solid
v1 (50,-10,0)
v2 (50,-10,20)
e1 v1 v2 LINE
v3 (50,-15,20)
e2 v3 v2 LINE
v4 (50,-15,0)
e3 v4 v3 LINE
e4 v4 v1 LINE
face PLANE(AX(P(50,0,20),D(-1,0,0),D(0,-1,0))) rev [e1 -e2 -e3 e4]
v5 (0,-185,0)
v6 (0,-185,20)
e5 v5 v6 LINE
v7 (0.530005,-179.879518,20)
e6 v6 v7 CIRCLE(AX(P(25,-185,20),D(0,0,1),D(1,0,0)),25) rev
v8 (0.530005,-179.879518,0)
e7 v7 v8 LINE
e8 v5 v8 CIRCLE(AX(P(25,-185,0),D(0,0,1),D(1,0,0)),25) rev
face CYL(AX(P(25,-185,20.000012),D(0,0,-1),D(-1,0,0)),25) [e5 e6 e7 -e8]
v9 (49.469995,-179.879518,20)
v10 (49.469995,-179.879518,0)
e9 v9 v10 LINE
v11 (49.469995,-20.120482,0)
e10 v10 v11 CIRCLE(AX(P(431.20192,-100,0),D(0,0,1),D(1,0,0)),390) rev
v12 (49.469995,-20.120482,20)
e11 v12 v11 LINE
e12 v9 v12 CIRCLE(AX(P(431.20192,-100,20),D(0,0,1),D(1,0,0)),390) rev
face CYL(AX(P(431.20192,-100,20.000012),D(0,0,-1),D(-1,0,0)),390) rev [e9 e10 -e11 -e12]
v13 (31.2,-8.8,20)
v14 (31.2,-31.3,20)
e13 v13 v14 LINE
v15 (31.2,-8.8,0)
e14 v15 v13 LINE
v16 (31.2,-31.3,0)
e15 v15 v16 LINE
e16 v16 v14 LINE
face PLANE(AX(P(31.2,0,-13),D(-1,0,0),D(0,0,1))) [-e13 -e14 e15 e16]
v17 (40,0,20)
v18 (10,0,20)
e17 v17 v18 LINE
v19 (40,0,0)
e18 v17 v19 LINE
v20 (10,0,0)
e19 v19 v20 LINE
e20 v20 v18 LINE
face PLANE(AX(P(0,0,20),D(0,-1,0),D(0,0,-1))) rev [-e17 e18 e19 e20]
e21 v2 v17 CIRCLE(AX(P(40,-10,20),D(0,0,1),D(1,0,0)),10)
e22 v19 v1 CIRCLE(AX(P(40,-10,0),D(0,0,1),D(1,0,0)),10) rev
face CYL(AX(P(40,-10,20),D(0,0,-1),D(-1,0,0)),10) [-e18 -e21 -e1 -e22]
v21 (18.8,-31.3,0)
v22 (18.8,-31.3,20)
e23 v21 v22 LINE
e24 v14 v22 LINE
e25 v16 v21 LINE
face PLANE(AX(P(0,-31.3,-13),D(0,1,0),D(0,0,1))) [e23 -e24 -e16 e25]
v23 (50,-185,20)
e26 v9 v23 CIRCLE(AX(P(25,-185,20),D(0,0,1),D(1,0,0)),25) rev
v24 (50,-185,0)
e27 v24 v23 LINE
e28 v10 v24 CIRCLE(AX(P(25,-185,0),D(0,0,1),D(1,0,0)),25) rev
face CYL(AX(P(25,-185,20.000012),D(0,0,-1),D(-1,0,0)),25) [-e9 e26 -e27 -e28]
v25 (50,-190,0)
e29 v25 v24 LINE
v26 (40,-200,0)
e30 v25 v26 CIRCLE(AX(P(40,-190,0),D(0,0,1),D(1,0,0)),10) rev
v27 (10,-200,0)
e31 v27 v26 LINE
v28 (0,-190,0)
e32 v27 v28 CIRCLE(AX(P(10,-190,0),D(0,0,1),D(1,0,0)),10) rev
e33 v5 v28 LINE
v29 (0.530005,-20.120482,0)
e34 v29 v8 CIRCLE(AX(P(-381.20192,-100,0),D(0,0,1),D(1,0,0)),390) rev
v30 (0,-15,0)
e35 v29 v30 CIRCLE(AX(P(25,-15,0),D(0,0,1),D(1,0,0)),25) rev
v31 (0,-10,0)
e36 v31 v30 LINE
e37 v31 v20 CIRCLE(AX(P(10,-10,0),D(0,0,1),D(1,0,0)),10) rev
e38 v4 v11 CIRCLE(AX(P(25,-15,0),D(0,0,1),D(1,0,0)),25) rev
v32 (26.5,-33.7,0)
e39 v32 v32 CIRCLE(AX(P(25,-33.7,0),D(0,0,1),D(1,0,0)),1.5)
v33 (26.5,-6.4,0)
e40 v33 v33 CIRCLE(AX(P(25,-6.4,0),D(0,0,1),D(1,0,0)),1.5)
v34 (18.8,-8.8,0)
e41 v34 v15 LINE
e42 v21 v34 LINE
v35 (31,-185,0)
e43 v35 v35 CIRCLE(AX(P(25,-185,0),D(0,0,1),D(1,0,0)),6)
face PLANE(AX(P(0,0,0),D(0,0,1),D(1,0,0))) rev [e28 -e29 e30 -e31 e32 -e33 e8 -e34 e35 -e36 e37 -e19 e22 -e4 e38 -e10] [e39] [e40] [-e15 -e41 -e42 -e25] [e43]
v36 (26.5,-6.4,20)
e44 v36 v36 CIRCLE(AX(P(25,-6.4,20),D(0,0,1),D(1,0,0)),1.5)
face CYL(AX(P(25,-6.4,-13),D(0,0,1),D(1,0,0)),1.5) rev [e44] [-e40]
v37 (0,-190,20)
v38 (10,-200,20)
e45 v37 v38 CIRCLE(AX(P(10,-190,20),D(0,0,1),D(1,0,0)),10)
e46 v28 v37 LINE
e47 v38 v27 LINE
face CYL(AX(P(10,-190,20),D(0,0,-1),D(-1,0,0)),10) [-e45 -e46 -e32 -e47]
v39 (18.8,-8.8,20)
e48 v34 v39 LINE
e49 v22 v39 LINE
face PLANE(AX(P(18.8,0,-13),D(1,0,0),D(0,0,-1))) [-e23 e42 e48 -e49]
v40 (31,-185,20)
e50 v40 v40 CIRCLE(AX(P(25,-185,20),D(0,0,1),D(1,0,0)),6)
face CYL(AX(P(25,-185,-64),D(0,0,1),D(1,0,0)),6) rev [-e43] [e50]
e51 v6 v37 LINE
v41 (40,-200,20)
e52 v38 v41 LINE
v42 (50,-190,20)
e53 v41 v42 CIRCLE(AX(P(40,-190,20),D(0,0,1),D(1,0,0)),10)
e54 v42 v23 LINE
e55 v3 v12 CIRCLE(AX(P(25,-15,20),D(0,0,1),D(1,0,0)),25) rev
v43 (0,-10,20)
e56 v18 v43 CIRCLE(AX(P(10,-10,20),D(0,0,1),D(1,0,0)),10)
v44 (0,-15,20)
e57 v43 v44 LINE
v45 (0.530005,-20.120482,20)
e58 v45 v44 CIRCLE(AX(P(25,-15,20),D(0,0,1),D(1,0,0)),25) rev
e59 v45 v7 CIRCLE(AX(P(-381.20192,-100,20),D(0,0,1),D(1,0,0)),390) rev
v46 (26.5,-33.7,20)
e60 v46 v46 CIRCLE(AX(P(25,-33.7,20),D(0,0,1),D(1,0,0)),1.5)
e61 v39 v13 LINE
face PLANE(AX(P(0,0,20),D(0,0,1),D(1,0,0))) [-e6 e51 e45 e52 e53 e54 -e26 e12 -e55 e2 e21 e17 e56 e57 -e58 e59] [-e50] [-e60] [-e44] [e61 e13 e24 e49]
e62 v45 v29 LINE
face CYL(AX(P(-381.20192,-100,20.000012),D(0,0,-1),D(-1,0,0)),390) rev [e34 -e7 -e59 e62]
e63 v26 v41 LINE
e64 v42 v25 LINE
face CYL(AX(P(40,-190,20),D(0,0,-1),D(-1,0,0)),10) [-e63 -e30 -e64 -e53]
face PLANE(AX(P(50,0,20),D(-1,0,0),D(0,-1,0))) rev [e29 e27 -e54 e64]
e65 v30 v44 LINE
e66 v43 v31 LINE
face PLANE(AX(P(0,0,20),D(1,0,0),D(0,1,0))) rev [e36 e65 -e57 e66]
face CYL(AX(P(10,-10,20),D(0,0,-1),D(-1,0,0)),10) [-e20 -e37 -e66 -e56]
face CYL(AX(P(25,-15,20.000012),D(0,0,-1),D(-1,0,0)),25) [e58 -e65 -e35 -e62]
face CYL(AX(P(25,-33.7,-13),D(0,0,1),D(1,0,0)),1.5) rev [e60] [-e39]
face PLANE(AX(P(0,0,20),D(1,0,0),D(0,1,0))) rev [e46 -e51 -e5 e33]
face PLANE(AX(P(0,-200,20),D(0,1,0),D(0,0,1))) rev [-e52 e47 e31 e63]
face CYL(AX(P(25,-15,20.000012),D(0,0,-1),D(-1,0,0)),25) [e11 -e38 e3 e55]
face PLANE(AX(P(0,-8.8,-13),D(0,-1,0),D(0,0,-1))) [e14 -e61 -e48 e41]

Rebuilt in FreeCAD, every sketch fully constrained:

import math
import FreeCAD as App
import Part
import Sketcher

V = App.Vector


def edges_at(feature, points):
    """Names of the edges that pass closest to the given points."""
    edges = feature.Shape.Edges
    near = lambda p: min(range(len(edges)), key=lambda i: edges[i].distToShape(Part.Vertex(*p))[0])
    return sorted({f"Edge{near(p) + 1}" for p in points})


def add_polygon(sketch, points):
    """Adds a closed chain of lines whose ends are joined by coincident constraints."""
    first, n = sketch.GeometryCount, len(points)
    for a, b in zip(points, points[1:] + points[:1]):
        sketch.addGeometry(Part.LineSegment(App.Vector(*a, 0), App.Vector(*b, 0)), False)
    for i in range(n):
        sketch.addConstraint(Sketcher.Constraint("Coincident", first + i, 2, first + (i + 1) % n, 1))

doc = App.newDocument("Part")
params = doc.addObject("Spreadsheet::Sheet", "Params")
for row, (alias, value) in enumerate([
    ("sketch1_width", "50 mm"),
    ("sketch1_height", "200 mm"),
    ("pad1_length", "20 mm"),
    ("sketch2_diameter", "12 mm"),
    ("pocket1_length", "84 mm"),
    ("fillet_radius", "10 mm"),
    ("sketch3_diameter", "12 mm"),
    ("sketch3_diameter2", "3 mm"),
    ("sketch3_width", "12.4 mm"),
    ("sketch3_height", "22.5 mm"),
    ("pocket2_length", "33 mm"),
    ("sketch4_radius", "25 mm"),
    ("sketch4_radius2", "390 mm"),
    ("sketch4_height", "170 mm"),
], start=1):
    params.set(f"A{row}", alias)
    params.set(f"B{row}", "=" + value)
    params.setAlias(f"B{row}", alias)

body = doc.addObject("PartDesign::Body", "Body")

sketch1 = body.newObject("Sketcher::SketchObject", "Sketch")
sketch1.AttachmentSupport = (doc.getObject("XY_Plane"), [""])
sketch1.MapMode = "FlatFace"
add_polygon(sketch1, [(0, 0), (0, -200), (50, -200), (50, 0)])
sketch1.addConstraint([
    Sketcher.Constraint("Vertical", 0),
    Sketcher.Constraint("Horizontal", 1),
    Sketcher.Constraint("Vertical", 2),
    Sketcher.Constraint("Horizontal", 3),
    Sketcher.Constraint("Coincident", 3, 2, -1, 1),
    Sketcher.Constraint("DistanceX", 1, 1, 1, 2, 50.0),
    Sketcher.Constraint("DistanceY", 0, 2, 0, 1, 200.0),
])
sketch1.setExpression("Constraints[9]", "Params.sketch1_width")
sketch1.setExpression("Constraints[10]", "Params.sketch1_height")
pad1 = body.newObject("PartDesign::Pad", "Pad")
pad1.Profile = sketch1
pad1.setExpression("Length", "Params.pad1_length")

sketch2 = body.newObject("Sketcher::SketchObject", "Sketch001")
sketch2.AttachmentSupport = (doc.getObject("XY_Plane"), [""])
sketch2.MapMode = "FlatFace"
sketch2.AttachmentOffset = App.Placement(V(0, 0, 20), App.Rotation())
sketch2.addGeometry([
    Part.Circle(V(25, -185, 0), V(0, 0, 1), 6),
    Part.Circle(V(25, -15, 0), V(0, 0, 1), 6),
], False)
sketch2.addConstraint([
    Sketcher.Constraint("Equal", 0, 1),
    Sketcher.Constraint("Vertical", 0, 3, 1, 3),
    Sketcher.Constraint("Diameter", 0, 12.0),
    Sketcher.Constraint("DistanceX", -1, 1, 0, 3, 25.0),
    Sketcher.Constraint("DistanceY", 0, 3, -1, 1, 185.0),
    Sketcher.Constraint("DistanceY", 1, 3, -1, 1, 15.0),
])
sketch2.setExpression("Constraints[2]", "Params.sketch2_diameter")
pocket1 = body.newObject("PartDesign::Pocket", "Pocket")
pocket1.Profile = sketch2
pocket1.setExpression("Length", "Params.pocket1_length")
doc.recompute()

fillet = body.newObject("PartDesign::Fillet", "Fillet")
fillet.Base = (pocket1, edges_at(pocket1, [
    (0, 0, 10),
    (50, 0, 10),
    (50, -200, 10),
    (0, -200, 10),
]))
fillet.setExpression("Radius", "Params.fillet_radius")

sketch3 = body.newObject("Sketcher::SketchObject", "Sketch002")
sketch3.AttachmentSupport = (doc.getObject("XY_Plane"), [""])
sketch3.MapMode = "FlatFace"
sketch3.AttachmentOffset = App.Placement(V(0, 0, 20), App.Rotation())
add_polygon(sketch3, [(31.2, -8.8), (18.8, -8.8), (18.8, -31.3), (31.2, -31.3)])
sketch3.addGeometry(Part.Circle(V(25, -15, 0), V(0, 0, 1), 6), False)
sketch3.addGeometry(Part.Circle(V(25, -33.7, 0), V(0, 0, 1), 1.5), False)
sketch3.addGeometry(Part.Circle(V(25, -6.4, 0), V(0, 0, 1), 1.5), False)
sketch3.addConstraint([
    Sketcher.Constraint("Horizontal", 0),
    Sketcher.Constraint("Vertical", 1),
    Sketcher.Constraint("Horizontal", 2),
    Sketcher.Constraint("Vertical", 3),
    Sketcher.Constraint("Equal", 5, 6),
    Sketcher.Constraint("Vertical", 4, 3, 5, 3),
    Sketcher.Constraint("Vertical", 5, 3, 6, 3),
    Sketcher.Constraint("Diameter", 4, 12.0),
    Sketcher.Constraint("Diameter", 5, 3.0),
    Sketcher.Constraint("DistanceX", 0, 2, 0, 1, 12.4),
    Sketcher.Constraint("DistanceY", 1, 2, 1, 1, 22.5),
    Sketcher.Constraint("DistanceX", -1, 1, 4, 3, 25.0),
    Sketcher.Constraint("DistanceY", 4, 3, -1, 1, 15.0),
    Sketcher.Constraint("DistanceY", 5, 3, -1, 1, 33.7),
    Sketcher.Constraint("DistanceY", 6, 3, -1, 1, 6.4),
    Sketcher.Constraint("DistanceX", -1, 1, 0, 2, 18.8),
    Sketcher.Constraint("DistanceY", 0, 2, -1, 1, 8.8),
])
sketch3.setExpression("Constraints[11]", "Params.sketch3_diameter")
sketch3.setExpression("Constraints[12]", "Params.sketch3_diameter2")
sketch3.setExpression("Constraints[13]", "Params.sketch3_width")
sketch3.setExpression("Constraints[14]", "Params.sketch3_height")
pocket2 = body.newObject("PartDesign::Pocket", "Pocket001")
pocket2.Profile = sketch3
pocket2.setExpression("Length", "Params.pocket2_length")

sketch4 = body.newObject("Sketcher::SketchObject", "Sketch003")
sketch4.AttachmentSupport = (doc.getObject("XY_Plane"), [""])
sketch4.MapMode = "FlatFace"
sketch4.AttachmentOffset = App.Placement(V(0, 0, 20), App.Rotation())
sketch4.addGeometry([
    Part.ArcOfCircle(Part.Circle(V(25, -185, 0), V(0, 0, 1), 25), math.radians(0), math.radians(11.82)),
    Part.LineSegment(V(50, -185, 0), V(50, -15, 0)),
    Part.ArcOfCircle(Part.Circle(V(25, -15, 0), V(0, 0, 1), 25), math.radians(-11.82), math.radians(0)),
    Part.ArcOfCircle(Part.Circle(V(431, -100, 0), V(0, 0, 1), 390), math.radians(168), math.radians(192)),
    Part.ArcOfCircle(Part.Circle(V(25, -15, 0), V(0, 0, 1), 25), math.radians(180), math.radians(191.82)),
    Part.LineSegment(V(0, -15, 0), V(0, -185, 0)),
    Part.ArcOfCircle(Part.Circle(V(25, -185, 0), V(0, 0, 1), 25), math.radians(168.18), math.radians(180)),
    Part.ArcOfCircle(Part.Circle(V(-381, -100, 0), V(0, 0, 1), 390), math.radians(-12), math.radians(12)),
], False)
sketch4.addConstraint([
    Sketcher.Constraint("Tangent", 0, 1, 1, 1),
    Sketcher.Constraint("Tangent", 1, 2, 2, 2),
    Sketcher.Constraint("Tangent", 2, 1, 3, 1),
    Sketcher.Constraint("Tangent", 3, 2, 0, 2),
    Sketcher.Constraint("Tangent", 4, 1, 5, 1),
    Sketcher.Constraint("Tangent", 5, 2, 6, 2),
    Sketcher.Constraint("Tangent", 6, 1, 7, 1),
    Sketcher.Constraint("Tangent", 7, 2, 4, 2),
    Sketcher.Constraint("Vertical", 1),
    Sketcher.Constraint("Vertical", 5),
    Sketcher.Constraint("Coincident", 4, 3, 2, 3),
    Sketcher.Constraint("Coincident", 6, 3, 0, 3),
    Sketcher.Constraint("Equal", 0, 2),
    Sketcher.Constraint("Equal", 2, 4),
    Sketcher.Constraint("Equal", 3, 7),
    Sketcher.Constraint("PointOnObject", 4, 1, -2),
    Sketcher.Constraint("Radius", 0, 25.0),
    Sketcher.Constraint("Radius", 3, 390.0),
    Sketcher.Constraint("DistanceY", 1, 1, 1, 2, 170.0),
    Sketcher.Constraint("DistanceY", 0, 3, -1, 1, 185.0),
])
sketch4.setExpression("Constraints[16]", "Params.sketch4_radius")
sketch4.setExpression("Constraints[17]", "Params.sketch4_radius2")
sketch4.setExpression("Constraints[18]", "Params.sketch4_height")
pocket3 = body.newObject("PartDesign::Pocket", "Pocket002")
pocket3.Profile = sketch4
pocket3.Type = "ThroughAll"
pocket3.Midplane = True

doc.recompute()
